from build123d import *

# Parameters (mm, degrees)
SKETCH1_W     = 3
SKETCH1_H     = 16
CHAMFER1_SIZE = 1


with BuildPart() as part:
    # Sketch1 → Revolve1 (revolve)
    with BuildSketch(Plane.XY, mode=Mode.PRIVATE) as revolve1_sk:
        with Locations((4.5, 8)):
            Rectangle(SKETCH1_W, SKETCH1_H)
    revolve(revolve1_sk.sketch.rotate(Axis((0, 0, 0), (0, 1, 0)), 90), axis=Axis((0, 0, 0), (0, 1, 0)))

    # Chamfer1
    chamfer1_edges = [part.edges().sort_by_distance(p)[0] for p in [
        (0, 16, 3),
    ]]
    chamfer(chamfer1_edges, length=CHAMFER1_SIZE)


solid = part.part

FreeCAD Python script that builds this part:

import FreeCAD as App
import Part
import Sketcher
from FreeCAD import Vector


def edges_at(feature, points):
    """Names of the edges that pass closest to the given points."""
    edges = feature.Shape.Edges
    near = lambda p: min(range(len(edges)), key=lambda i: edges[i].distToShape(Part.Vertex(*p))[0])
    return sorted({f"Edge{near(p) + 1}" for p in points})

doc = App.newDocument("Part")
body = doc.addObject("PartDesign::Body", "Body")

# Sketch on XY plane
sketch1 = doc.addObject("Sketcher::SketchObject", "Sketch")
body.addObject(sketch1)
sketch1.AttachmentSupport = (doc.XY_Plane, [""])
sketch1.MapMode = "FlatFace"
sketch1.addGeometry(Part.LineSegment(Vector(3, 16, 0), Vector(3, 0, 0)), False)
sketch1.addGeometry(Part.LineSegment(Vector(3, 0, 0), Vector(6, 0, 0)), False)
sketch1.addGeometry(Part.LineSegment(Vector(6, 0, 0), Vector(6, 16, 0)), False)
sketch1.addGeometry(Part.LineSegment(Vector(6, 16, 0), Vector(3, 16, 0)), False)
sketch1.addConstraint(Sketcher.Constraint("Coincident", 0, 2, 1, 1))
sketch1.addConstraint(Sketcher.Constraint("Coincident", 1, 2, 2, 1))
sketch1.addConstraint(Sketcher.Constraint("Coincident", 2, 2, 3, 1))
sketch1.addConstraint(Sketcher.Constraint("Coincident", 3, 2, 0, 1))
sketch1.addConstraint(Sketcher.Constraint("Vertical", 0))
sketch1.addConstraint(Sketcher.Constraint("Horizontal", 1))
sketch1.addConstraint(Sketcher.Constraint("Vertical", 2))
sketch1.addConstraint(Sketcher.Constraint("Horizontal", 3))
sketch1.addConstraint(Sketcher.Constraint("PointOnObject", 0, 2, -1))
sketch1.addConstraint(Sketcher.Constraint("DistanceX", 1, 1, 1, 2, 3.0))
sketch1.addConstraint(Sketcher.Constraint("DistanceY", 0, 2, 0, 1, 16.0))
sketch1.addConstraint(Sketcher.Constraint("DistanceX", -1, 1, 0, 2, 3.0))
revolution = doc.addObject("PartDesign::Revolution", "Revolution")
body.addObject(revolution)
revolution.Profile = sketch1
revolution.ReferenceAxis = (sketch1, ["V_Axis"])
revolution.Angle = 360
doc.recompute()

chamfer = doc.addObject("PartDesign::Chamfer", "Chamfer")
body.addObject(chamfer)
chamfer.Base = (revolution, edges_at(revolution, [(0, 16, 3)]))
chamfer.Size = 1

doc.recompute()
